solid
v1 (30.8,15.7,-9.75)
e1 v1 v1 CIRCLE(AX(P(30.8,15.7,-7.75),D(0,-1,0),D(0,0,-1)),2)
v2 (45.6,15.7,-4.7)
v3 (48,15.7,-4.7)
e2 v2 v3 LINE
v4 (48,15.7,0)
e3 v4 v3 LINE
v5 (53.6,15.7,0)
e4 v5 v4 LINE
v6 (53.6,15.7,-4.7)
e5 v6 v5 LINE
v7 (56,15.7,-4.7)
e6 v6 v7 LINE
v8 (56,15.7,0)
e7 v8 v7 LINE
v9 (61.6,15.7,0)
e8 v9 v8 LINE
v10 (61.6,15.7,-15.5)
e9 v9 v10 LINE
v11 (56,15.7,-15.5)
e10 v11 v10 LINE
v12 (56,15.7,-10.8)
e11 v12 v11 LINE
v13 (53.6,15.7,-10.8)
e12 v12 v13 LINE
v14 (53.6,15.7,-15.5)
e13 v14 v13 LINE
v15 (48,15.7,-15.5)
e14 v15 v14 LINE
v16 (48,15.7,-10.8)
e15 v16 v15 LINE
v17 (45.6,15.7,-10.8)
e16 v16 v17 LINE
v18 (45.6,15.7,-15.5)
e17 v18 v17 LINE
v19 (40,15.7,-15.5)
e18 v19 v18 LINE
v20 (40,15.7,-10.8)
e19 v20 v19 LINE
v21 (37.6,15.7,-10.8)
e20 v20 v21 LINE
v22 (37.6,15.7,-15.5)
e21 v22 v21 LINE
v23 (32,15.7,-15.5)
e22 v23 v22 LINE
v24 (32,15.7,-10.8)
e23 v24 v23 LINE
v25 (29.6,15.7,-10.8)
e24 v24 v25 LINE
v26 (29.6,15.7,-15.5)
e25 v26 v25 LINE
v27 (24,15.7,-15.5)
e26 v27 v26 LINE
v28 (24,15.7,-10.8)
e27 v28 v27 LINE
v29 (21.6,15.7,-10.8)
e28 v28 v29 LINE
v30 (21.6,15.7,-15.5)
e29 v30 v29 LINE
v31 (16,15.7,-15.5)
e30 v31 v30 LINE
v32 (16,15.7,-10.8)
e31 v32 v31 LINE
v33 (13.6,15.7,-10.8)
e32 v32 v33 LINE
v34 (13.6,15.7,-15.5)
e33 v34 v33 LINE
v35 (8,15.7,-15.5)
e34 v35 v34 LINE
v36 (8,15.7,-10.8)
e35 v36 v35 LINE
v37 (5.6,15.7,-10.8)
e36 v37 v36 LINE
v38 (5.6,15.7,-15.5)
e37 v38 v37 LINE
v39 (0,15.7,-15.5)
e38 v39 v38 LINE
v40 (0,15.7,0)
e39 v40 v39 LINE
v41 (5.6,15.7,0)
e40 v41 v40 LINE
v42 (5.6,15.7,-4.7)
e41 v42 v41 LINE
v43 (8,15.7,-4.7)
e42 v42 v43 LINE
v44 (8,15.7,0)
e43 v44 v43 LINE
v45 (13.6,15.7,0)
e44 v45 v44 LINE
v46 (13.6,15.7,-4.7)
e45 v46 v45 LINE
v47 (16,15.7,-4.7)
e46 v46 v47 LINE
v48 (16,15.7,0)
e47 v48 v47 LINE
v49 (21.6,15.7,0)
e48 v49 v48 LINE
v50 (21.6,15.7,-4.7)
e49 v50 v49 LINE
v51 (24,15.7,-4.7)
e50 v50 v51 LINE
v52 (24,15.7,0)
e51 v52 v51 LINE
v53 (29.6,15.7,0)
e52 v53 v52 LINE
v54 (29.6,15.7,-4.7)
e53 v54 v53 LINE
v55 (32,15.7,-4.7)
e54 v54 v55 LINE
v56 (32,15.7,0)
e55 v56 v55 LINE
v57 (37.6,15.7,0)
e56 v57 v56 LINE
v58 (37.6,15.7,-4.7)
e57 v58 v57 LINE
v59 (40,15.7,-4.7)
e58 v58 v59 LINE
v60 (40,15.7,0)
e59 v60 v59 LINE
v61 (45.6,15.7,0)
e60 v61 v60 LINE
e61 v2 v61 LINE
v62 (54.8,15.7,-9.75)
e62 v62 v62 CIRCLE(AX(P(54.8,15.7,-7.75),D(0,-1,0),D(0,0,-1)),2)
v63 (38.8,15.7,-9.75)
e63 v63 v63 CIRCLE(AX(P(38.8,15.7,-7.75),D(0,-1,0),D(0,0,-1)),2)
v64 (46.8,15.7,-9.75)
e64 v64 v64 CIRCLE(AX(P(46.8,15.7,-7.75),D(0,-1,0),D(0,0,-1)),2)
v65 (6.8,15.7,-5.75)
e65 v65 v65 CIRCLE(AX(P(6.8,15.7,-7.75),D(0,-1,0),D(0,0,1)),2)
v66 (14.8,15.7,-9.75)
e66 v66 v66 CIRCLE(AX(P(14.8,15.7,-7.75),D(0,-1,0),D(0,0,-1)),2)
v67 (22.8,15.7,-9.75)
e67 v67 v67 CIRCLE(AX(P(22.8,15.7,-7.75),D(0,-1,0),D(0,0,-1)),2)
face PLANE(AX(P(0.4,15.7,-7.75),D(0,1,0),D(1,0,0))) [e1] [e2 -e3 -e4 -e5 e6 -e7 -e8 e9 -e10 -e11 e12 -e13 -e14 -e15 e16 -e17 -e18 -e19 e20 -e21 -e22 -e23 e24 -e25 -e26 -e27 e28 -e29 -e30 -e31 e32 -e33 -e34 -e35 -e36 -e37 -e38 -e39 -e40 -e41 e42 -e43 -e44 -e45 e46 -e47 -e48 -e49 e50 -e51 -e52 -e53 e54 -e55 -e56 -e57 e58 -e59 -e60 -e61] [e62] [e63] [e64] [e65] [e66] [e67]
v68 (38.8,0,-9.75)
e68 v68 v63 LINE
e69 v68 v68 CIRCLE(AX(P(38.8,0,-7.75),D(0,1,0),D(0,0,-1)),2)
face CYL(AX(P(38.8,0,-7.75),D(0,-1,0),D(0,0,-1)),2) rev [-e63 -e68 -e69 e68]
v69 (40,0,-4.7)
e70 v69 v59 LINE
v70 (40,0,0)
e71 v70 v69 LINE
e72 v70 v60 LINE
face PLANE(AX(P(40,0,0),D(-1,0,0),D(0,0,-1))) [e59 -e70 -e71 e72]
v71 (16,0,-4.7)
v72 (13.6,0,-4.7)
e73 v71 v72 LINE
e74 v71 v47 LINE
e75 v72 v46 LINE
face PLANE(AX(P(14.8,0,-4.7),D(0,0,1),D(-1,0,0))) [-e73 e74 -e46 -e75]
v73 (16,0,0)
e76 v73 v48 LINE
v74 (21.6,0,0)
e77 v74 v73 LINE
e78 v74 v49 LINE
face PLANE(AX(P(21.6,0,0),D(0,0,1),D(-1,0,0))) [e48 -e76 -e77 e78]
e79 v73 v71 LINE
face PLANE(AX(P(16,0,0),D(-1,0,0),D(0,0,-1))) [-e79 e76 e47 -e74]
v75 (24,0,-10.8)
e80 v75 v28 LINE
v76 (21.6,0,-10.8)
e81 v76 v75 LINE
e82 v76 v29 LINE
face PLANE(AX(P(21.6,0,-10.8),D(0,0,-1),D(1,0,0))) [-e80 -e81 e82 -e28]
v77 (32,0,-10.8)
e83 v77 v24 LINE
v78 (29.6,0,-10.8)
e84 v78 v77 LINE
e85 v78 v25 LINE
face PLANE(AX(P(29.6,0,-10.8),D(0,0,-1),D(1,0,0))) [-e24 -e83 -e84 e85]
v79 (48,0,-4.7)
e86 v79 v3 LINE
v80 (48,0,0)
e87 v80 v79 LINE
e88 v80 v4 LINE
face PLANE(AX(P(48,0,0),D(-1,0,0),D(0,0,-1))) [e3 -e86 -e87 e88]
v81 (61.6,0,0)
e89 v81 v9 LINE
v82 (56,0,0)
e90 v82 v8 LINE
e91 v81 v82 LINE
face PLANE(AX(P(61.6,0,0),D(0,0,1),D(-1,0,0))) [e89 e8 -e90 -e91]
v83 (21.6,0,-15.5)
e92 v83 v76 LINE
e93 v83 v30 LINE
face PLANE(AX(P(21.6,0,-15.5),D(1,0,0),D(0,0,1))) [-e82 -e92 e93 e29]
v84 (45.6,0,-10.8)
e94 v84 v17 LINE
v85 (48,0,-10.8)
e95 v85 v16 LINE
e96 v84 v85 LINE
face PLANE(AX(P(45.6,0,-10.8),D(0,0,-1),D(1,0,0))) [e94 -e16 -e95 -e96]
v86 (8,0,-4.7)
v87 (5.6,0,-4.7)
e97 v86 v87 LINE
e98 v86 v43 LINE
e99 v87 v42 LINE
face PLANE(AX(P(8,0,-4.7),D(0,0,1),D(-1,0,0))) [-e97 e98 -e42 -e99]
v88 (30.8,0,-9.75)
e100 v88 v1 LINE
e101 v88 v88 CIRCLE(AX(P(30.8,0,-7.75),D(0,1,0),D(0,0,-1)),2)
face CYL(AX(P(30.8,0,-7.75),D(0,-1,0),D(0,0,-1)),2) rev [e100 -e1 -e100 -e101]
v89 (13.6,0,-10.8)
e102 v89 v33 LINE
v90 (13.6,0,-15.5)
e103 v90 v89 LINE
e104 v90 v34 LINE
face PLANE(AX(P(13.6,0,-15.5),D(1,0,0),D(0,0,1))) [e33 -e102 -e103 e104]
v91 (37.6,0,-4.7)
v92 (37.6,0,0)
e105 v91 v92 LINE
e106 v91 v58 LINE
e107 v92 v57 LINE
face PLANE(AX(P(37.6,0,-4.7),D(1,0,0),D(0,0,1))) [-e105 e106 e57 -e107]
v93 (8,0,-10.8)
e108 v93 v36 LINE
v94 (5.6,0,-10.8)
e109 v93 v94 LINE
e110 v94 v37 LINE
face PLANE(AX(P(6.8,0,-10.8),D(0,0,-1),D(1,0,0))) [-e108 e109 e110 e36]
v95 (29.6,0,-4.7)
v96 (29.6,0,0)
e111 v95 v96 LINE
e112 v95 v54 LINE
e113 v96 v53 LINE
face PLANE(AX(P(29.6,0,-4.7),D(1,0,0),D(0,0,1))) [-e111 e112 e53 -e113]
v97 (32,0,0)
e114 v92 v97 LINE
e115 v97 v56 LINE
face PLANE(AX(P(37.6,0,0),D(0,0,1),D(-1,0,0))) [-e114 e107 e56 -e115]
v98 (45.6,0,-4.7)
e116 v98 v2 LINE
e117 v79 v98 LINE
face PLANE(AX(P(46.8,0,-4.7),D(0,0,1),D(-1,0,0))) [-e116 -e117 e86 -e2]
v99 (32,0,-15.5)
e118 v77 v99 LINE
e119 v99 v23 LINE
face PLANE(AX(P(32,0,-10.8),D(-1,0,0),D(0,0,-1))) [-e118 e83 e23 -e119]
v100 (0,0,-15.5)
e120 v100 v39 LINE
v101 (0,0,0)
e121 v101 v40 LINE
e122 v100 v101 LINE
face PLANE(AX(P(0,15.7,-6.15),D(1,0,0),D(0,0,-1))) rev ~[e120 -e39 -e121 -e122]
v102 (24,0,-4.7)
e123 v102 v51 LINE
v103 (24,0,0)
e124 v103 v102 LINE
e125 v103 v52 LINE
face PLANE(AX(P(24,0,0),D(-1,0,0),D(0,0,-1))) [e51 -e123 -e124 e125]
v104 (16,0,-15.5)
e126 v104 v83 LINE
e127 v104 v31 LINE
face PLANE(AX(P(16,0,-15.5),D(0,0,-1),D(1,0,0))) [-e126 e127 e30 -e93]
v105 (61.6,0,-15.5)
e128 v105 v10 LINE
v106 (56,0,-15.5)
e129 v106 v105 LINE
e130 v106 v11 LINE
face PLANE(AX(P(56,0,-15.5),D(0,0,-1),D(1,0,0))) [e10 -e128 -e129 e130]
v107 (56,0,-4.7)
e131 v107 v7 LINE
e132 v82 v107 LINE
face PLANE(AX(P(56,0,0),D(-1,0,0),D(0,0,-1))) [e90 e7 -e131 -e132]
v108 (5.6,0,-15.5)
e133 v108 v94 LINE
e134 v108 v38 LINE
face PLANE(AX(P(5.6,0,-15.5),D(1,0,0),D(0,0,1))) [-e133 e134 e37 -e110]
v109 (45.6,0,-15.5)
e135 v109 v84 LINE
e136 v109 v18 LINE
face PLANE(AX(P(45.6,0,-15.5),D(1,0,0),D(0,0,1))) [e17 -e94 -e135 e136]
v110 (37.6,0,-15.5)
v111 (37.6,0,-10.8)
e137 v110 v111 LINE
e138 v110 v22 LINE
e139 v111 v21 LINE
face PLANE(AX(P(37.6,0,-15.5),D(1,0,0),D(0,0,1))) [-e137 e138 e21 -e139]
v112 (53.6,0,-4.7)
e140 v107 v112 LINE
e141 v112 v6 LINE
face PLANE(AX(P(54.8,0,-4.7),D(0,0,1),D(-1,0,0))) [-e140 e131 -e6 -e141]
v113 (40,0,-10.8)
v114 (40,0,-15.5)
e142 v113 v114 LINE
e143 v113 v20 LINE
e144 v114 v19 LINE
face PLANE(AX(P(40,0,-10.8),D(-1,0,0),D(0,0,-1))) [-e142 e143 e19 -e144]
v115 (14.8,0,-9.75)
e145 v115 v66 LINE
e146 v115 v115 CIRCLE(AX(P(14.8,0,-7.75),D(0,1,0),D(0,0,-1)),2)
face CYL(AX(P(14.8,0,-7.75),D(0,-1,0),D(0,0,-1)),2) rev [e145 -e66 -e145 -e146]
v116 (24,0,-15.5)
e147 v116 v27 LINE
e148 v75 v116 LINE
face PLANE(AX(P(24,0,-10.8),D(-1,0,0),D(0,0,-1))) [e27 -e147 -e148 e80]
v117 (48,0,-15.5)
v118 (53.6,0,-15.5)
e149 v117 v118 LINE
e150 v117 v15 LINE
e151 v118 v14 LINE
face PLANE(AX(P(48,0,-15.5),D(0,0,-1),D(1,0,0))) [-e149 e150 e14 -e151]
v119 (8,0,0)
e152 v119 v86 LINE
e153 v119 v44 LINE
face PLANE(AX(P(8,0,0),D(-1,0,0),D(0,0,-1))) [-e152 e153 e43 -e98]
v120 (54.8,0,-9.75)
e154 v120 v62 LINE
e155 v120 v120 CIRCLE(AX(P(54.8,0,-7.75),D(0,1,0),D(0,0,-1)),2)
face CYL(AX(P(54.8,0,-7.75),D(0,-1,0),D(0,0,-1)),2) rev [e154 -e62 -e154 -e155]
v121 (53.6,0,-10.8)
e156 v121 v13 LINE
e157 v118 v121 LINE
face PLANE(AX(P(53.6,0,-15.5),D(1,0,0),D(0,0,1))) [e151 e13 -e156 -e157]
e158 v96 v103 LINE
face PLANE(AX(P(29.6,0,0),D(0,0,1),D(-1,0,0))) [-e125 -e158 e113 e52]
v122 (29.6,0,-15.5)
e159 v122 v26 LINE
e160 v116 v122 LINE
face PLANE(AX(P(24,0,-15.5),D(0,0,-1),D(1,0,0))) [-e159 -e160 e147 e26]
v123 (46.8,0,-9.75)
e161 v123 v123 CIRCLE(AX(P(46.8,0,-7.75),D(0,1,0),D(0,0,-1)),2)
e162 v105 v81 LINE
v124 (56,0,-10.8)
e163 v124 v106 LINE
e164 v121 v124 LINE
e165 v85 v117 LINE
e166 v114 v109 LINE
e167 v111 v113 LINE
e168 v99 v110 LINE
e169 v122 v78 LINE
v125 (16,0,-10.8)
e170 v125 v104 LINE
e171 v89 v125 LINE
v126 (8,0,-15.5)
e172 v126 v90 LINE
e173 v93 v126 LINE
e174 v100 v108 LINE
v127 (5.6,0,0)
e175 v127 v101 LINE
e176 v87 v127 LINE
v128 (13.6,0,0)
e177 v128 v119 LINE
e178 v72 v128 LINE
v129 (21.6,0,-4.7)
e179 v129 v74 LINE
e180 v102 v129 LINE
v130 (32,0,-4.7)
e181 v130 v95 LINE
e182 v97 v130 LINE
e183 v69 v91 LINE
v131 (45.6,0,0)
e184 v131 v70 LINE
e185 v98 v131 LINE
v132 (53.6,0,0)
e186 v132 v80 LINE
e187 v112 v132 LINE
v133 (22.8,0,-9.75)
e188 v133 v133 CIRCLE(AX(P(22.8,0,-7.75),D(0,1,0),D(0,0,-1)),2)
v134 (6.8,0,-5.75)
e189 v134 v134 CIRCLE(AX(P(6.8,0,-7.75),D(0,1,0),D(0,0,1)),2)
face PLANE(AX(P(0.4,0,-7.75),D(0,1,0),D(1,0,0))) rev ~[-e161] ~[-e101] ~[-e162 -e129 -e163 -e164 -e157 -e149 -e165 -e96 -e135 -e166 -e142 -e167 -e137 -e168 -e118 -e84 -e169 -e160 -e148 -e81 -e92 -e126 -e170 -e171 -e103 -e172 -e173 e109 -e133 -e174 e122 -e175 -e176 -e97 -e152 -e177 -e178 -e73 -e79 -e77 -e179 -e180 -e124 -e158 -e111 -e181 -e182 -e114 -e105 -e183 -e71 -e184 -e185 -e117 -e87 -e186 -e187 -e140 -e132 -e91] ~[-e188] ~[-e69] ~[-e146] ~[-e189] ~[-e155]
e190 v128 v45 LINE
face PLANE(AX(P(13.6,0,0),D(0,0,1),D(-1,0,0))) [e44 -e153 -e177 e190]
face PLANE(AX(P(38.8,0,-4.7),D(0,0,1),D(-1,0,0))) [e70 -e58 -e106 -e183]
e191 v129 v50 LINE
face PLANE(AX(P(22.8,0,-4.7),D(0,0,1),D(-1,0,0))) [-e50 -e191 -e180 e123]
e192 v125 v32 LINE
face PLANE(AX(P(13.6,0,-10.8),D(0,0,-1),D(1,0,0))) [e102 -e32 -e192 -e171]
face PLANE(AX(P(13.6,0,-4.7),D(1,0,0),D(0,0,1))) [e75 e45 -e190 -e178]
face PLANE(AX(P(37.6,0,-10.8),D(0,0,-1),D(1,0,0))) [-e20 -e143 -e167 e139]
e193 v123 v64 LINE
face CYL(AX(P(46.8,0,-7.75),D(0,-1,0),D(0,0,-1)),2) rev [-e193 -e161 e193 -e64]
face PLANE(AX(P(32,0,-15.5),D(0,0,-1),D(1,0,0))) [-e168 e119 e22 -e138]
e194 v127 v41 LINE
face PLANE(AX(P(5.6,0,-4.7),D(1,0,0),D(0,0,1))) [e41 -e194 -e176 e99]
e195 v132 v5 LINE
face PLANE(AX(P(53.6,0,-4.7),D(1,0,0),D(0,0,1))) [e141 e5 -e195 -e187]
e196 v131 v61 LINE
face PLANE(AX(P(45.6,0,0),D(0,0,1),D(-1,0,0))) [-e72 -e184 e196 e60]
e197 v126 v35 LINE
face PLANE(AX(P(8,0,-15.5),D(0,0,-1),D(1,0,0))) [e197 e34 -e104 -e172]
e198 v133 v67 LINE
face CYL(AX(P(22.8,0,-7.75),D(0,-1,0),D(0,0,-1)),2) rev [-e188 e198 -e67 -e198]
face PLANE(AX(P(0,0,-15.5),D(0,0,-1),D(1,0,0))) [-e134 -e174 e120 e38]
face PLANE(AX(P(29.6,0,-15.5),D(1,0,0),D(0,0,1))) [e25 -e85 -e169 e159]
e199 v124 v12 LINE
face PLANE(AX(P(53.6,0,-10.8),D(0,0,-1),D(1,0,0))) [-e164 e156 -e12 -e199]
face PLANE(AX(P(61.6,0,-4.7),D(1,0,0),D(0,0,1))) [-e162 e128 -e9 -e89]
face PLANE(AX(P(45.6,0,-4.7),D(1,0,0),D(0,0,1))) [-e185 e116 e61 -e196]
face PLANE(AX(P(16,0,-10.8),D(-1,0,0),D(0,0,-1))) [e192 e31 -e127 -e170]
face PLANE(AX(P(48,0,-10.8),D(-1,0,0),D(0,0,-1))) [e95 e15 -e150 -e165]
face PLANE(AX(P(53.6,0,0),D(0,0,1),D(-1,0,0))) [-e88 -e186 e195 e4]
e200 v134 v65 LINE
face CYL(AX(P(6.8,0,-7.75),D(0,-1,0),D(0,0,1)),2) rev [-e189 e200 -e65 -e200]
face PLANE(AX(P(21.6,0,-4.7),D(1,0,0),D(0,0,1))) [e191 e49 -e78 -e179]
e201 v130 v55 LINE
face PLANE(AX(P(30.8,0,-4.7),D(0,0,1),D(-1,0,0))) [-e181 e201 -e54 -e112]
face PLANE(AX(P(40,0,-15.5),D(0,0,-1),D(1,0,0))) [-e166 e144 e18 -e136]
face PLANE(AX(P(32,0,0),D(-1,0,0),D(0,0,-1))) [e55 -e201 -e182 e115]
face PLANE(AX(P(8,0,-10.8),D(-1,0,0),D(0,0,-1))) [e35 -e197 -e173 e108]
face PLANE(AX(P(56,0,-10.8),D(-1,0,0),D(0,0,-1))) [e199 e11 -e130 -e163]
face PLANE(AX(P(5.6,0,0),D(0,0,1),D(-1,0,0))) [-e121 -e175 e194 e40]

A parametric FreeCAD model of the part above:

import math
import FreeCAD as App
import Part
import Sketcher
from FreeCAD import Vector


def add_polygon(sketch, points):
    """Adds a closed chain of lines whose ends are joined by coincident constraints."""
    first, n = sketch.GeometryCount, len(points)
    for a, b in zip(points, points[1:] + points[:1]):
        sketch.addGeometry(Part.LineSegment(App.Vector(*a, 0), App.Vector(*b, 0)), False)
    for i in range(n):
        sketch.addConstraint(Sketcher.Constraint("Coincident", first + i, 2, first + (i + 1) % n, 1))

doc = App.newDocument("Part")
body = doc.addObject("PartDesign::Body", "Body")

# Sketch on XZ plane
sketch1 = body.newObject("Sketcher::SketchObject", "Sketch")
sketch1.AttachmentSupport = (doc.getObject("XZ_Plane"), [""])
sketch1.MapMode = "FlatFace"
sketch1.addGeometry([
    Part.LineSegment(Vector(0, -15.5, 0), Vector(0, -10.8, 0)),  # 0
    Part.LineSegment(Vector(0, -10.8, 0), Vector(-1.2, -10.8, 0)),  # 1
    Part.LineSegment(Vector(-1.2, -10.8, 0), Vector(-1.2, -9.8, 0)),  # 2
    Part.ArcOfCircle(Part.Circle(Vector(-1.2, -7.8, 0), Vector(0, 0, 1), 2), math.radians(-90), math.radians(90)),  # 3
    Part.LineSegment(Vector(-1.2, -5.8, 0), Vector(-1.2, -4.7, 0)),  # 4
    Part.LineSegment(Vector(-1.2, -4.7, 0), Vector(0, -4.7, 0)),  # 5
    Part.LineSegment(Vector(0, -4.7, 0), Vector(0, 0, 0)),  # 6
    Part.LineSegment(Vector(0, 0, 0), Vector(5.6, 0, 0)),  # 7
    Part.LineSegment(Vector(5.6, 0, 0), Vector(5.6, -4.7, 0)),  # 8
    Part.LineSegment(Vector(5.6, -4.7, 0), Vector(6.8, -4.7, 0)),  # 9
    Part.LineSegment(Vector(6.8, -4.7, 0), Vector(6.8, -5.8, 0)),  # 10
    Part.ArcOfCircle(Part.Circle(Vector(6.8, -7.8, 0), Vector(0, 0, 1), 2), math.radians(90), math.radians(270)),  # 11
    Part.LineSegment(Vector(6.8, -9.8, 0), Vector(6.8, -10.8, 0)),  # 12
    Part.LineSegment(Vector(6.8, -10.8, 0), Vector(5.6, -10.8, 0)),  # 13
    Part.LineSegment(Vector(5.6, -10.8, 0), Vector(5.6, -15.5, 0)),  # 14
    Part.LineSegment(Vector(5.6, -15.5, 0), Vector(0, -15.5, 0)),  # 15
], False)
sketch1.addConstraint([
    Sketcher.Constraint("Coincident", 0, 2, 1, 1),
    Sketcher.Constraint("Coincident", 1, 2, 2, 1),
    Sketcher.Constraint("Coincident", 2, 2, 3, 1),
    Sketcher.Constraint("Coincident", 3, 2, 4, 1),
    Sketcher.Constraint("Coincident", 4, 2, 5, 1),
    Sketcher.Constraint("Coincident", 5, 2, 6, 1),
    Sketcher.Constraint("Coincident", 6, 2, 7, 1),
    Sketcher.Constraint("Coincident", 7, 2, 8, 1),
    Sketcher.Constraint("Coincident", 8, 2, 9, 1),
    Sketcher.Constraint("Coincident", 9, 2, 10, 1),
    Sketcher.Constraint("Coincident", 10, 2, 11, 1),
    Sketcher.Constraint("Coincident", 11, 2, 12, 1),
    Sketcher.Constraint("Coincident", 12, 2, 13, 1),
    Sketcher.Constraint("Coincident", 13, 2, 14, 1),
    Sketcher.Constraint("Coincident", 14, 2, 15, 1),
    Sketcher.Constraint("Coincident", 15, 2, 0, 1),
    Sketcher.Constraint("Vertical", 0),
    Sketcher.Constraint("Horizontal", 1),
    Sketcher.Constraint("Vertical", 2),
    Sketcher.Constraint("Vertical", 4),
    Sketcher.Constraint("Horizontal", 5),
    Sketcher.Constraint("Vertical", 6),
    Sketcher.Constraint("Horizontal", 7),
    Sketcher.Constraint("Vertical", 8),
    Sketcher.Constraint("Horizontal", 9),
    Sketcher.Constraint("Vertical", 10),
    Sketcher.Constraint("Vertical", 12),
    Sketcher.Constraint("Horizontal", 13),
    Sketcher.Constraint("Vertical", 14),
    Sketcher.Constraint("Horizontal", 15),
    Sketcher.Constraint("Coincident", 6, 2, -1, 1),
    Sketcher.Constraint("Equal", 3, 11),
    Sketcher.Constraint("PointOnObject", 0, 2, -2),
    Sketcher.Constraint("Horizontal", 3, 3, 11, 3),
    Sketcher.Constraint("Horizontal", 5, 2, 8, 2),
    Sketcher.Constraint("Horizontal", 1, 2, 12, 2),
    Sketcher.Constraint("Vertical", 3, 3, 1, 2),
    Sketcher.Constraint("Vertical", 2, 2, 3, 2),
    Sketcher.Constraint("Vertical", 11, 3, 9, 2),
    Sketcher.Constraint("Vertical", 10, 2, 11, 2),
    Sketcher.Constraint("Vertical", 8, 2, 13, 2),
    Sketcher.Constraint("Equal", 5, 9),
    Sketcher.Constraint("Equal", 2, 4),
    Sketcher.Constraint("Equal", 0, 6),
    Sketcher.Constraint("Radius", 3, 2.0),
    Sketcher.Constraint("DistanceX", 1, 2, 1, 1, 1.2),
    Sketcher.Constraint("DistanceX", 7, 1, 7, 2, 5.6),
    Sketcher.Constraint("DistanceY", 0, 1, 0, 2, 4.7),
    Sketcher.Constraint("DistanceY", 2, 1, 2, 2, 1.05),
])
pad1 = body.newObject("PartDesign::Pad", "Pad")
pad1.Profile = sketch1
pad1.Length = 15.7
pad1.Reversed = True
doc.recompute()

linearpattern = body.newObject("PartDesign::LinearPattern", "LinearPattern")
linearpattern.Originals = [pad1]
linearpattern.Direction = (doc.getObject("X_Axis"), [""])
linearpattern.Mode = "offset"
linearpattern.Offset = 8
linearpattern.Occurrences = 8
body.Tip = linearpattern

# Sketch on XZ plane
sketch2 = body.newObject("Sketcher::SketchObject", "Sketch001")
sketch2.AttachmentSupport = (doc.getObject("XZ_Plane"), [""])
sketch2.MapMode = "FlatFace"
sketch2.AttachmentOffset = App.Placement(Vector(0, 0, -15.7), App.Rotation())
add_polygon(sketch2, [(-1.2, -10.8), (-1.2, -4.7), (0, -4.7), (0, -10.8)])  # lines 0-3
add_polygon(sketch2, [(61.6, -10.8), (61.6, -4.7), (62.8, -4.7), (62.8, -10.8)])  # lines 4-7
sketch2.addConstraint([
    Sketcher.Constraint("Vertical", 0),
    Sketcher.Constraint("Horizontal", 1),
    Sketcher.Constraint("Vertical", 2),
    Sketcher.Constraint("Horizontal", 3),
    Sketcher.Constraint("Vertical", 4),
    Sketcher.Constraint("Horizontal", 5),
    Sketcher.Constraint("Vertical", 6),
    Sketcher.Constraint("Horizontal", 7),
    Sketcher.Constraint("PointOnObject", 1, 2, -2),
    Sketcher.Constraint("Horizontal", 1, 2, 4, 2),
    Sketcher.Constraint("Horizontal", 3, 2, 6, 2),
    Sketcher.Constraint("Equal", 3, 5),
    Sketcher.Constraint("DistanceX", 1, 1, 1, 2, 1.2),
    Sketcher.Constraint("DistanceY", 0, 1, 0, 2, 6.1),
    Sketcher.Constraint("DistanceX", 0, 2, 5, 2, 64.0),
    Sketcher.Constraint("DistanceY", 0, 2, -1, 1, 4.7),
])
pocket1 = body.newObject("PartDesign::Pocket", "Pocket")
pocket1.Profile = sketch2
pocket1.Type = "ThroughAll"
pocket1.Reversed = True

# Sketch on XZ plane
sketch3 = body.newObject("Sketcher::SketchObject", "Sketch002")
sketch3.AttachmentSupport = (doc.getObject("XZ_Plane"), [""])
sketch3.MapMode = "FlatFace"
sketch3.AttachmentOffset = App.Placement(Vector(0, 0, -15.7), App.Rotation())
add_polygon(sketch3, [(0, -9.3), (0, -6.2), (0.8, -6.2), (0.8, -9.3)])  # lines 0-3
add_polygon(sketch3, [(60.8, -9.3), (60.8, -6.2), (61.6, -6.2), (61.6, -9.3)])  # lines 4-7
sketch3.addConstraint([
    Sketcher.Constraint("Vertical", 0),
    Sketcher.Constraint("Horizontal", 1),
    Sketcher.Constraint("Vertical", 2),
    Sketcher.Constraint("Horizontal", 3),
    Sketcher.Constraint("Vertical", 4),
    Sketcher.Constraint("Horizontal", 5),
    Sketcher.Constraint("Vertical", 6),
    Sketcher.Constraint("Horizontal", 7),
    Sketcher.Constraint("PointOnObject", 0, 2, -2),
    Sketcher.Constraint("Horizontal", 1, 2, 4, 2),
    Sketcher.Constraint("Horizontal", 3, 2, 6, 2),
    Sketcher.Constraint("Equal", 3, 5),
    Sketcher.Constraint("DistanceX", 1, 1, 1, 2, 0.8),
    Sketcher.Constraint("DistanceY", 0, 1, 0, 2, 3.2),
    Sketcher.Constraint("DistanceX", 1, 2, 4, 2, 60.0),
    Sketcher.Constraint("DistanceY", 0, 2, -1, 1, 6.15),
])
pad2 = body.newObject("PartDesign::Pad", "Pad001")
pad2.Profile = sketch3
pad2.Length = 15.7

doc.recompute()
